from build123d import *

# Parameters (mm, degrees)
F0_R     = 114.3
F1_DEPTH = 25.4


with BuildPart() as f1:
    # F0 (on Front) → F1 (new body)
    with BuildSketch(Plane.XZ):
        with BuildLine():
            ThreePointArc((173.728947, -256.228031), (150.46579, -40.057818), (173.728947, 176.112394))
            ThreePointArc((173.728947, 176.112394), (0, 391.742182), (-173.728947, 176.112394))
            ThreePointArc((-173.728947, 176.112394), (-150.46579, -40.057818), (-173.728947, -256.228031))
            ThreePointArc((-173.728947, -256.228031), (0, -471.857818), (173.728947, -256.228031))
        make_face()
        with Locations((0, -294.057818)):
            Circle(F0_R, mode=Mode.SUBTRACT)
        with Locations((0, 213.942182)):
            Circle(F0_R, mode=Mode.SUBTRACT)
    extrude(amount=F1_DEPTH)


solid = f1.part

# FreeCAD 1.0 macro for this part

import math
import FreeCAD as App
import Part
import Sketcher
Q = App.Units.Quantity

doc = App.newDocument("Part")
body = doc.addObject("PartDesign::Body", "Body")

sketch1 = body.newObject("Sketcher::SketchObject", "Sketch")
sketch1.AttachmentSupport = (doc.getObject("XZ_Plane"), [""])
sketch1.MapMode = "FlatFace"
sketch1.addGeometry(Part.ArcOfCircle(Part.Circle(App.Vector(1166.465795, -40.057819, 0), App.Vector(0, 0, 1), 1016.000005), math.radians(167.715506), math.radians(192.284494)), False)
sketch1.addGeometry(Part.ArcOfCircle(Part.Circle(App.Vector(0, 213.942182, 0), App.Vector(0, 0, 1), 177.8), math.radians(-12.284494), math.radians(192.284494)), False)
sketch1.addGeometry(Part.ArcOfCircle(Part.Circle(App.Vector(-1166.465795, -40.057819, 0), App.Vector(0, 0, 1), 1016.000005), math.radians(-12.284494), math.radians(12.284494)), False)
sketch1.addGeometry(Part.ArcOfCircle(Part.Circle(App.Vector(0, -294.057818, 0), App.Vector(0, 0, 1), 177.8), math.radians(167.715506), math.radians(372.284494)), False)
sketch1.addGeometry(Part.Circle(App.Vector(0, -294.057818, 0), App.Vector(0, 0, 1), 114.3), False)
sketch1.addGeometry(Part.Circle(App.Vector(0, 213.942182, 0), App.Vector(0, 0, 1), 114.3), False)
sketch1.addConstraint(Sketcher.Constraint("Tangent", 0, 1, 1, 1))
sketch1.addConstraint(Sketcher.Constraint("Tangent", 1, 2, 2, 2))
sketch1.addConstraint(Sketcher.Constraint("Tangent", 2, 1, 3, 1))
sketch1.addConstraint(Sketcher.Constraint("Tangent", 3, 2, 0, 2))
sketch1.addConstraint(Sketcher.Constraint("Coincident", 4, 3, 3, 3))
sketch1.addConstraint(Sketcher.Constraint("Coincident", 5, 3, 1, 3))
sketch1.addConstraint(Sketcher.Constraint("Equal", 0, 2))
sketch1.addConstraint(Sketcher.Constraint("Equal", 1, 3))
sketch1.addConstraint(Sketcher.Constraint("Equal", 4, 5))
sketch1.addConstraint(Sketcher.Constraint("Symmetric", 0, 3, 2, 3, -2))
sketch1.addConstraint(Sketcher.Constraint("Diameter", 4, Q("9 in")))
sketch1.addConstraint(Sketcher.Constraint("Radius", 0, Q("40.0000002 in")))
sketch1.addConstraint(Sketcher.Constraint("Radius", 1, Q("7 in")))
sketch1.addConstraint(Sketcher.Constraint("DistanceY", 0, 3, 1, 3, Q("10 in")))
sketch1.addConstraint(Sketcher.Constraint("DistanceY", 0, 3, -1, 1, Q("40.057819 mm")))
pad1 = body.newObject("PartDesign::Pad", "Pad")
pad1.Profile = sketch1
pad1.Length = Q("1 in")

doc.recompute()
